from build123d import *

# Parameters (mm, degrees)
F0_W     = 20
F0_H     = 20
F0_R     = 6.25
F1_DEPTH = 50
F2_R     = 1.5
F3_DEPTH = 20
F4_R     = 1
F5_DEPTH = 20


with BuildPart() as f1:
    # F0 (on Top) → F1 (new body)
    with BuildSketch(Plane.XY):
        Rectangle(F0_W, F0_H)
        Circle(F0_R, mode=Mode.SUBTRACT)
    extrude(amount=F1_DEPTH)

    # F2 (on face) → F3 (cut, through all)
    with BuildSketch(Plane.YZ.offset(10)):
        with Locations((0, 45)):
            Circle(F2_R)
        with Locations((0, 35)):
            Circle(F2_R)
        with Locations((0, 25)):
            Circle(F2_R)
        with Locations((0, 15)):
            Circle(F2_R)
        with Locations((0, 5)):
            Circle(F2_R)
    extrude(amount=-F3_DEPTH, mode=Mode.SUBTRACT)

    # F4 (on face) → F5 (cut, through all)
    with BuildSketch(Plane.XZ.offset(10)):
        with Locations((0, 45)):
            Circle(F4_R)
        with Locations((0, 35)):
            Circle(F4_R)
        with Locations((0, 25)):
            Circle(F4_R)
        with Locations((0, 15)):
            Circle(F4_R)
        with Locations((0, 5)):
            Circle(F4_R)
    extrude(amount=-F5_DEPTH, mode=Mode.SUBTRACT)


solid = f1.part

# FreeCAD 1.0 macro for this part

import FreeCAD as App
import Part
import Sketcher

V = App.Vector


def add_polygon(sketch, points):
    """Adds a closed chain of lines whose ends are joined by coincident constraints."""
    first, n = sketch.GeometryCount, len(points)
    for a, b in zip(points, points[1:] + points[:1]):
        sketch.addGeometry(Part.LineSegment(App.Vector(*a, 0), App.Vector(*b, 0)), False)
    for i in range(n):
        sketch.addConstraint(Sketcher.Constraint("Coincident", first + i, 2, first + (i + 1) % n, 1))

doc = App.newDocument("Part")
params = doc.addObject("Spreadsheet::Sheet", "Params")
for row, (alias, value) in enumerate([
    ("sketch1_diameter", "12.5 mm"),
    ("sketch1_width", "20 mm"),
    ("pad1_length", "50 mm"),
    ("sketch2_diameter", "3 mm"),
    ("sketch3_diameter", "2 mm"),
], start=1):
    params.set(f"A{row}", alias)
    params.set(f"B{row}", "=" + value)
    params.setAlias(f"B{row}", alias)

body = doc.addObject("PartDesign::Body", "Body")

sketch1 = body.newObject("Sketcher::SketchObject", "Sketch")
sketch1.AttachmentSupport = (doc.getObject("XY_Plane"), [""])
sketch1.MapMode = "FlatFace"
add_polygon(sketch1, [(-10, 10), (-10, -10), (10, -10), (10, 10)])
sketch1.addGeometry(Part.Circle(V(0, 0, 0), V(0, 0, 1), 6.25), False)
sketch1.addConstraint(Sketcher.Constraint("Vertical", 0))
sketch1.addConstraint(Sketcher.Constraint("Horizontal", 1))
sketch1.addConstraint(Sketcher.Constraint("Vertical", 2))
sketch1.addConstraint(Sketcher.Constraint("Horizontal", 3))
sketch1.addConstraint(Sketcher.Constraint("Coincident", 4, 3, -1, 1))
sketch1.addConstraint(Sketcher.Constraint("Symmetric", 0, 2, 2, 2, -1, 1))
sketch1.addConstraint(Sketcher.Constraint("Equal", 3, 0))
sketch1.addConstraint(Sketcher.Constraint("Diameter", 4, 12.5))
sketch1.addConstraint(Sketcher.Constraint("DistanceX", 1, 1, 1, 2, 20.0))
sketch1.setExpression("Constraints[11]", "Params.sketch1_diameter")
sketch1.setExpression("Constraints[12]", "Params.sketch1_width")
pad1 = body.newObject("PartDesign::Pad", "Pad")
pad1.Profile = sketch1
pad1.setExpression("Length", "Params.pad1_length")

sketch2 = body.newObject("Sketcher::SketchObject", "Sketch001")
sketch2.AttachmentSupport = (doc.getObject("YZ_Plane"), [""])
sketch2.MapMode = "FlatFace"
sketch2.AttachmentOffset = App.Placement(V(0, 0, 10), App.Rotation())
sketch2.addGeometry(Part.Circle(V(0, 45, 0), V(0, 0, 1), 1.5), False)
sketch2.addGeometry(Part.Circle(V(0, 35, 0), V(0, 0, 1), 1.5), False)
sketch2.addGeometry(Part.Circle(V(0, 25, 0), V(0, 0, 1), 1.5), False)
sketch2.addGeometry(Part.Circle(V(0, 15, 0), V(0, 0, 1), 1.5), False)
sketch2.addGeometry(Part.Circle(V(0, 5, 0), V(0, 0, 1), 1.5), False)
sketch2.addConstraint(Sketcher.Constraint("Equal", 0, 1))
sketch2.addConstraint(Sketcher.Constraint("Equal", 1, 2))
sketch2.addConstraint(Sketcher.Constraint("Equal", 2, 3))
sketch2.addConstraint(Sketcher.Constraint("Equal", 3, 4))
sketch2.addConstraint(Sketcher.Constraint("PointOnObject", 0, 3, -2))
sketch2.addConstraint(Sketcher.Constraint("PointOnObject", 1, 3, -2))
sketch2.addConstraint(Sketcher.Constraint("PointOnObject", 2, 3, -2))
sketch2.addConstraint(Sketcher.Constraint("PointOnObject", 3, 3, -2))
sketch2.addConstraint(Sketcher.Constraint("PointOnObject", 4, 3, -2))
sketch2.addConstraint(Sketcher.Constraint("Diameter", 0, 3.0))
sketch2.addConstraint(Sketcher.Constraint("DistanceY", -1, 1, 0, 3, 45.0))
sketch2.addConstraint(Sketcher.Constraint("DistanceY", -1, 1, 1, 3, 35.0))
sketch2.addConstraint(Sketcher.Constraint("DistanceY", -1, 1, 2, 3, 25.0))
sketch2.addConstraint(Sketcher.Constraint("DistanceY", -1, 1, 3, 3, 15.0))
sketch2.addConstraint(Sketcher.Constraint("DistanceY", -1, 1, 4, 3, 5.0))
sketch2.setExpression("Constraints[9]", "Params.sketch2_diameter")
pocket1 = body.newObject("PartDesign::Pocket", "Pocket")
pocket1.Profile = sketch2
pocket1.Type = "ThroughAll"

sketch3 = body.newObject("Sketcher::SketchObject", "Sketch002")
sketch3.AttachmentSupport = (doc.getObject("XZ_Plane"), [""])
sketch3.MapMode = "FlatFace"
sketch3.AttachmentOffset = App.Placement(V(0, 0, 10), App.Rotation())
sketch3.addGeometry(Part.Circle(V(0, 45, 0), V(0, 0, 1), 1), False)
sketch3.addGeometry(Part.Circle(V(0, 35, 0), V(0, 0, 1), 1), False)
sketch3.addGeometry(Part.Circle(V(0, 25, 0), V(0, 0, 1), 1), False)
sketch3.addGeometry(Part.Circle(V(0, 15, 0), V(0, 0, 1), 1), False)
sketch3.addGeometry(Part.Circle(V(0, 5, 0), V(0, 0, 1), 1), False)
sketch3.addConstraint(Sketcher.Constraint("Equal", 0, 1))
sketch3.addConstraint(Sketcher.Constraint("Equal", 1, 2))
sketch3.addConstraint(Sketcher.Constraint("Equal", 2, 3))
sketch3.addConstraint(Sketcher.Constraint("Equal", 3, 4))
sketch3.addConstraint(Sketcher.Constraint("PointOnObject", 0, 3, -2))
sketch3.addConstraint(Sketcher.Constraint("PointOnObject", 1, 3, -2))
sketch3.addConstraint(Sketcher.Constraint("PointOnObject", 2, 3, -2))
sketch3.addConstraint(Sketcher.Constraint("PointOnObject", 3, 3, -2))
sketch3.addConstraint(Sketcher.Constraint("PointOnObject", 4, 3, -2))
sketch3.addConstraint(Sketcher.Constraint("Diameter", 0, 2.0))
sketch3.addConstraint(Sketcher.Constraint("DistanceY", -1, 1, 0, 3, 45.0))
sketch3.addConstraint(Sketcher.Constraint("DistanceY", -1, 1, 1, 3, 35.0))
sketch3.addConstraint(Sketcher.Constraint("DistanceY", -1, 1, 2, 3, 25.0))
sketch3.addConstraint(Sketcher.Constraint("DistanceY", -1, 1, 3, 3, 15.0))
sketch3.addConstraint(Sketcher.Constraint("DistanceY", -1, 1, 4, 3, 5.0))
sketch3.setExpression("Constraints[9]", "Params.sketch3_diameter")
pocket2 = body.newObject("PartDesign::Pocket", "Pocket001")
pocket2.Profile = sketch3
pocket2.Type = "ThroughAll"

doc.recompute()
